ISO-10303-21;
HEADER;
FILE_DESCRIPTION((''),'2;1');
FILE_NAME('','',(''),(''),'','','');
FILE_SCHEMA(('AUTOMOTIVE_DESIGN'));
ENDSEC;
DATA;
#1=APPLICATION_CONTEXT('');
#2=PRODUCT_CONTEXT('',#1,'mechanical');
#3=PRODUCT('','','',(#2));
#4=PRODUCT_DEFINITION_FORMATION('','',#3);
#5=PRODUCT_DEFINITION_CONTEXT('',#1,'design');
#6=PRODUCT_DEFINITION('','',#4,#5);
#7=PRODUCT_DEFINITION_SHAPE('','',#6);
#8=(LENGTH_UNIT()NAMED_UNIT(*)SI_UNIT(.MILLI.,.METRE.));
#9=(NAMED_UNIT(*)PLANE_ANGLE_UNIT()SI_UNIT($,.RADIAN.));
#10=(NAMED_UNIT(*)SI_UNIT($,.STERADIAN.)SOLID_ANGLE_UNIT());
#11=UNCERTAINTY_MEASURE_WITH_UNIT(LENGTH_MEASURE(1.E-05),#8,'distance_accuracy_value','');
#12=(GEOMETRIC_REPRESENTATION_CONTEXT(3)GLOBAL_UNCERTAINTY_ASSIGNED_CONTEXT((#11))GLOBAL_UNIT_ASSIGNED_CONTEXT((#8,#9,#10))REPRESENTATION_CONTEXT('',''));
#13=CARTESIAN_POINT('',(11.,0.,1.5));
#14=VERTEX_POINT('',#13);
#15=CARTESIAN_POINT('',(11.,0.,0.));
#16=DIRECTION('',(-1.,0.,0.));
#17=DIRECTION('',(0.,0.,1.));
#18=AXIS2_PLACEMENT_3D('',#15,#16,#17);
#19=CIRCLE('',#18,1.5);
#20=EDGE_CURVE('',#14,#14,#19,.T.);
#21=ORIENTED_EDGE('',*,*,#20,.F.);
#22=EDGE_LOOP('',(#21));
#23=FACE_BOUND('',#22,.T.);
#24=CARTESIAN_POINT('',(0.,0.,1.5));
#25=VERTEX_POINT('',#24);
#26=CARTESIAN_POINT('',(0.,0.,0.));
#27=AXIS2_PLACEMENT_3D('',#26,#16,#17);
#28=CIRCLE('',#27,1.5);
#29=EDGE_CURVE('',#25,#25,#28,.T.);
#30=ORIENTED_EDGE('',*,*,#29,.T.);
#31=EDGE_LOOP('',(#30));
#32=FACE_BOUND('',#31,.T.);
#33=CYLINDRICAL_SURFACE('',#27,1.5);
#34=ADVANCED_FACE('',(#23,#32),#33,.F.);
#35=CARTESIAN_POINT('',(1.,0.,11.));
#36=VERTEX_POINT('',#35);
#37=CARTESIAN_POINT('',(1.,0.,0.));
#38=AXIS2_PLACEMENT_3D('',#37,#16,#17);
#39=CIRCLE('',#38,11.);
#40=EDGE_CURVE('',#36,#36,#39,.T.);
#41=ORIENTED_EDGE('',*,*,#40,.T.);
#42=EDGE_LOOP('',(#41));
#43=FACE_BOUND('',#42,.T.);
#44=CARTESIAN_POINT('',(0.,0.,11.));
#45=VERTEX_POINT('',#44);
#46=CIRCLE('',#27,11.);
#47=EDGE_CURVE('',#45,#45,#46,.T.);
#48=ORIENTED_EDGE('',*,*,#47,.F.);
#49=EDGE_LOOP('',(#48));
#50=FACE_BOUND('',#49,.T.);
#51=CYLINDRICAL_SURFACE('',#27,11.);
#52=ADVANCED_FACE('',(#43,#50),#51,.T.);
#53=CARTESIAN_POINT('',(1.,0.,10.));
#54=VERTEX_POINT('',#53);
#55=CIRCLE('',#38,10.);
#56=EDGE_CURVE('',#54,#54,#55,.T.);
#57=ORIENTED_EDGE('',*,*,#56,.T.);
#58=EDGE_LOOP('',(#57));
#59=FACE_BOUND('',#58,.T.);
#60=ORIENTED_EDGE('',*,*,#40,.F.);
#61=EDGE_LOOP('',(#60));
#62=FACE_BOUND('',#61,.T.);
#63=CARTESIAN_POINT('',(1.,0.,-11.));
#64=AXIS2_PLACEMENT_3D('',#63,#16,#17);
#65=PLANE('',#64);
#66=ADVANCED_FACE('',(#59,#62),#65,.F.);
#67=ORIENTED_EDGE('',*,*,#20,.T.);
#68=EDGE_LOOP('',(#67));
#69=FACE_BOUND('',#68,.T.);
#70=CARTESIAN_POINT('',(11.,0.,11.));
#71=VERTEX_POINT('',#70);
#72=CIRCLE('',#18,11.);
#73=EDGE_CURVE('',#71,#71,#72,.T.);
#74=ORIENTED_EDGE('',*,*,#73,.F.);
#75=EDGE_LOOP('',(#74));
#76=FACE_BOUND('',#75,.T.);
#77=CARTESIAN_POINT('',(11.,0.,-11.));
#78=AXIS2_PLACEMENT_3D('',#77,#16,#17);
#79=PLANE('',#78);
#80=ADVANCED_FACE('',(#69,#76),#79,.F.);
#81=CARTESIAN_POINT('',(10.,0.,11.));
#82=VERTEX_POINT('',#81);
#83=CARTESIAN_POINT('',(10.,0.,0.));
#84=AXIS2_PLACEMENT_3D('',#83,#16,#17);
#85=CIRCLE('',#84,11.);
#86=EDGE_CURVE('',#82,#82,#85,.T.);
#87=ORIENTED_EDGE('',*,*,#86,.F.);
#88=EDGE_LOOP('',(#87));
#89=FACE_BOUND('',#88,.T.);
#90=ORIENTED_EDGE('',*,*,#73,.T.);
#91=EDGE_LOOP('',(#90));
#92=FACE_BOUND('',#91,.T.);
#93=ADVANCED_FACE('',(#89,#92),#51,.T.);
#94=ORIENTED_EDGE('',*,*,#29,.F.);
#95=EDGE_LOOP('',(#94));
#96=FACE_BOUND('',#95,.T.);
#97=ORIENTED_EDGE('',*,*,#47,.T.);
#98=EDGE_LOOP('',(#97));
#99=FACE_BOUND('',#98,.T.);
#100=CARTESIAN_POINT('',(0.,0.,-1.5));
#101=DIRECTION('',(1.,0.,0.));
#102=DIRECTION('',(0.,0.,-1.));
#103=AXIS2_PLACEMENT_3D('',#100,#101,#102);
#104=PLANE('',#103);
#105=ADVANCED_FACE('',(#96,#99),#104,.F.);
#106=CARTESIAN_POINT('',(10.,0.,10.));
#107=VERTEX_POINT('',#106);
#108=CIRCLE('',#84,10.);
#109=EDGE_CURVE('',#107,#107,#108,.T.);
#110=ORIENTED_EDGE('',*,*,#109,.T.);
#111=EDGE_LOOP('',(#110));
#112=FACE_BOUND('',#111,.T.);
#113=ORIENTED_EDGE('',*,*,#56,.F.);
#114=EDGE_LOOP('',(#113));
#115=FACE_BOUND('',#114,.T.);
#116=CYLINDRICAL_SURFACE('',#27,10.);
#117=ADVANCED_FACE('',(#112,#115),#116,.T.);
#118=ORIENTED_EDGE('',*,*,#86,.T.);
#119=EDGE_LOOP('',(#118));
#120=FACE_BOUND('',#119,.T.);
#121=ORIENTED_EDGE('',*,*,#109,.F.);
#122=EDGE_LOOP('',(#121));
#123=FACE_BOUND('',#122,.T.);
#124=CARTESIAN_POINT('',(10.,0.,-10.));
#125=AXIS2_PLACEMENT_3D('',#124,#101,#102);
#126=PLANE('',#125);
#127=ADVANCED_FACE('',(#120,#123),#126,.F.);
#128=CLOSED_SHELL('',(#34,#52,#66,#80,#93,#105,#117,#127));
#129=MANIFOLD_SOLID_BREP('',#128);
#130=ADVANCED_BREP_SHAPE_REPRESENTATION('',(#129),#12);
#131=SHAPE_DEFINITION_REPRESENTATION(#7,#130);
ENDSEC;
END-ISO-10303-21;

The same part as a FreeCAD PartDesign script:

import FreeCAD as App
import Part
import Sketcher
from FreeCAD import Vector
Q = App.Units.Quantity

doc = App.newDocument("Part")
body = doc.addObject("PartDesign::Body", "Body")

# Sketch on XZ plane
sketch1 = body.newObject("Sketcher::SketchObject", "Sketch")
sketch1.AttachmentSupport = (doc.getObject("XZ_Plane"), [""])
sketch1.MapMode = "FlatFace"
sketch1.addGeometry([
    Part.LineSegment(Vector(0, -11, 0), Vector(0, -1.5, 0)),  # 0
    Part.LineSegment(Vector(0, -1.5, 0), Vector(11, -1.5, 0)),  # 1
    Part.LineSegment(Vector(11, -1.5, 0), Vector(11, -11, 0)),  # 2
    Part.LineSegment(Vector(11, -11, 0), Vector(10, -11, 0)),  # 3
    Part.LineSegment(Vector(10, -11, 0), Vector(10, -10, 0)),  # 4
    Part.LineSegment(Vector(10, -10, 0), Vector(1, -10, 0)),  # 5
    Part.LineSegment(Vector(1, -10, 0), Vector(1, -11, 0)),  # 6
    Part.LineSegment(Vector(1, -11, 0), Vector(0, -11, 0)),  # 7
], False)
sketch1.addConstraint([
    Sketcher.Constraint("Coincident", 0, 2, 1, 1),
    Sketcher.Constraint("Coincident", 1, 2, 2, 1),
    Sketcher.Constraint("Coincident", 2, 2, 3, 1),
    Sketcher.Constraint("Coincident", 3, 2, 4, 1),
    Sketcher.Constraint("Coincident", 4, 2, 5, 1),
    Sketcher.Constraint("Coincident", 5, 2, 6, 1),
    Sketcher.Constraint("Coincident", 6, 2, 7, 1),
    Sketcher.Constraint("Coincident", 7, 2, 0, 1),
    Sketcher.Constraint("Vertical", 0),
    Sketcher.Constraint("Horizontal", 1),
    Sketcher.Constraint("Vertical", 2),
    Sketcher.Constraint("Horizontal", 3),
    Sketcher.Constraint("Vertical", 4),
    Sketcher.Constraint("Horizontal", 5),
    Sketcher.Constraint("Vertical", 6),
    Sketcher.Constraint("Horizontal", 7),
    Sketcher.Constraint("PointOnObject", 0, 2, -2),
    Sketcher.Constraint("Horizontal", 3, 2, 6, 2),
    Sketcher.Constraint("Equal", 3, 7),
    Sketcher.Constraint("Equal", 7, 4),
    Sketcher.Constraint("DistanceX", 1, 1, 1, 2, Q("11 mm")),
    Sketcher.Constraint("DistanceX", 3, 2, 3, 1, Q("1 mm")),
    Sketcher.Constraint("DistanceY", 0, 1, 0, 2, Q("9.5 mm")),
    Sketcher.Constraint("DistanceY", 2, 2, -1, 1, Q("11 mm")),
])
revolution = body.newObject("PartDesign::Revolution", "Revolution")
revolution.Profile = sketch1
revolution.ReferenceAxis = (sketch1, ["H_Axis"])
revolution.Angle = 360

doc.recompute()
